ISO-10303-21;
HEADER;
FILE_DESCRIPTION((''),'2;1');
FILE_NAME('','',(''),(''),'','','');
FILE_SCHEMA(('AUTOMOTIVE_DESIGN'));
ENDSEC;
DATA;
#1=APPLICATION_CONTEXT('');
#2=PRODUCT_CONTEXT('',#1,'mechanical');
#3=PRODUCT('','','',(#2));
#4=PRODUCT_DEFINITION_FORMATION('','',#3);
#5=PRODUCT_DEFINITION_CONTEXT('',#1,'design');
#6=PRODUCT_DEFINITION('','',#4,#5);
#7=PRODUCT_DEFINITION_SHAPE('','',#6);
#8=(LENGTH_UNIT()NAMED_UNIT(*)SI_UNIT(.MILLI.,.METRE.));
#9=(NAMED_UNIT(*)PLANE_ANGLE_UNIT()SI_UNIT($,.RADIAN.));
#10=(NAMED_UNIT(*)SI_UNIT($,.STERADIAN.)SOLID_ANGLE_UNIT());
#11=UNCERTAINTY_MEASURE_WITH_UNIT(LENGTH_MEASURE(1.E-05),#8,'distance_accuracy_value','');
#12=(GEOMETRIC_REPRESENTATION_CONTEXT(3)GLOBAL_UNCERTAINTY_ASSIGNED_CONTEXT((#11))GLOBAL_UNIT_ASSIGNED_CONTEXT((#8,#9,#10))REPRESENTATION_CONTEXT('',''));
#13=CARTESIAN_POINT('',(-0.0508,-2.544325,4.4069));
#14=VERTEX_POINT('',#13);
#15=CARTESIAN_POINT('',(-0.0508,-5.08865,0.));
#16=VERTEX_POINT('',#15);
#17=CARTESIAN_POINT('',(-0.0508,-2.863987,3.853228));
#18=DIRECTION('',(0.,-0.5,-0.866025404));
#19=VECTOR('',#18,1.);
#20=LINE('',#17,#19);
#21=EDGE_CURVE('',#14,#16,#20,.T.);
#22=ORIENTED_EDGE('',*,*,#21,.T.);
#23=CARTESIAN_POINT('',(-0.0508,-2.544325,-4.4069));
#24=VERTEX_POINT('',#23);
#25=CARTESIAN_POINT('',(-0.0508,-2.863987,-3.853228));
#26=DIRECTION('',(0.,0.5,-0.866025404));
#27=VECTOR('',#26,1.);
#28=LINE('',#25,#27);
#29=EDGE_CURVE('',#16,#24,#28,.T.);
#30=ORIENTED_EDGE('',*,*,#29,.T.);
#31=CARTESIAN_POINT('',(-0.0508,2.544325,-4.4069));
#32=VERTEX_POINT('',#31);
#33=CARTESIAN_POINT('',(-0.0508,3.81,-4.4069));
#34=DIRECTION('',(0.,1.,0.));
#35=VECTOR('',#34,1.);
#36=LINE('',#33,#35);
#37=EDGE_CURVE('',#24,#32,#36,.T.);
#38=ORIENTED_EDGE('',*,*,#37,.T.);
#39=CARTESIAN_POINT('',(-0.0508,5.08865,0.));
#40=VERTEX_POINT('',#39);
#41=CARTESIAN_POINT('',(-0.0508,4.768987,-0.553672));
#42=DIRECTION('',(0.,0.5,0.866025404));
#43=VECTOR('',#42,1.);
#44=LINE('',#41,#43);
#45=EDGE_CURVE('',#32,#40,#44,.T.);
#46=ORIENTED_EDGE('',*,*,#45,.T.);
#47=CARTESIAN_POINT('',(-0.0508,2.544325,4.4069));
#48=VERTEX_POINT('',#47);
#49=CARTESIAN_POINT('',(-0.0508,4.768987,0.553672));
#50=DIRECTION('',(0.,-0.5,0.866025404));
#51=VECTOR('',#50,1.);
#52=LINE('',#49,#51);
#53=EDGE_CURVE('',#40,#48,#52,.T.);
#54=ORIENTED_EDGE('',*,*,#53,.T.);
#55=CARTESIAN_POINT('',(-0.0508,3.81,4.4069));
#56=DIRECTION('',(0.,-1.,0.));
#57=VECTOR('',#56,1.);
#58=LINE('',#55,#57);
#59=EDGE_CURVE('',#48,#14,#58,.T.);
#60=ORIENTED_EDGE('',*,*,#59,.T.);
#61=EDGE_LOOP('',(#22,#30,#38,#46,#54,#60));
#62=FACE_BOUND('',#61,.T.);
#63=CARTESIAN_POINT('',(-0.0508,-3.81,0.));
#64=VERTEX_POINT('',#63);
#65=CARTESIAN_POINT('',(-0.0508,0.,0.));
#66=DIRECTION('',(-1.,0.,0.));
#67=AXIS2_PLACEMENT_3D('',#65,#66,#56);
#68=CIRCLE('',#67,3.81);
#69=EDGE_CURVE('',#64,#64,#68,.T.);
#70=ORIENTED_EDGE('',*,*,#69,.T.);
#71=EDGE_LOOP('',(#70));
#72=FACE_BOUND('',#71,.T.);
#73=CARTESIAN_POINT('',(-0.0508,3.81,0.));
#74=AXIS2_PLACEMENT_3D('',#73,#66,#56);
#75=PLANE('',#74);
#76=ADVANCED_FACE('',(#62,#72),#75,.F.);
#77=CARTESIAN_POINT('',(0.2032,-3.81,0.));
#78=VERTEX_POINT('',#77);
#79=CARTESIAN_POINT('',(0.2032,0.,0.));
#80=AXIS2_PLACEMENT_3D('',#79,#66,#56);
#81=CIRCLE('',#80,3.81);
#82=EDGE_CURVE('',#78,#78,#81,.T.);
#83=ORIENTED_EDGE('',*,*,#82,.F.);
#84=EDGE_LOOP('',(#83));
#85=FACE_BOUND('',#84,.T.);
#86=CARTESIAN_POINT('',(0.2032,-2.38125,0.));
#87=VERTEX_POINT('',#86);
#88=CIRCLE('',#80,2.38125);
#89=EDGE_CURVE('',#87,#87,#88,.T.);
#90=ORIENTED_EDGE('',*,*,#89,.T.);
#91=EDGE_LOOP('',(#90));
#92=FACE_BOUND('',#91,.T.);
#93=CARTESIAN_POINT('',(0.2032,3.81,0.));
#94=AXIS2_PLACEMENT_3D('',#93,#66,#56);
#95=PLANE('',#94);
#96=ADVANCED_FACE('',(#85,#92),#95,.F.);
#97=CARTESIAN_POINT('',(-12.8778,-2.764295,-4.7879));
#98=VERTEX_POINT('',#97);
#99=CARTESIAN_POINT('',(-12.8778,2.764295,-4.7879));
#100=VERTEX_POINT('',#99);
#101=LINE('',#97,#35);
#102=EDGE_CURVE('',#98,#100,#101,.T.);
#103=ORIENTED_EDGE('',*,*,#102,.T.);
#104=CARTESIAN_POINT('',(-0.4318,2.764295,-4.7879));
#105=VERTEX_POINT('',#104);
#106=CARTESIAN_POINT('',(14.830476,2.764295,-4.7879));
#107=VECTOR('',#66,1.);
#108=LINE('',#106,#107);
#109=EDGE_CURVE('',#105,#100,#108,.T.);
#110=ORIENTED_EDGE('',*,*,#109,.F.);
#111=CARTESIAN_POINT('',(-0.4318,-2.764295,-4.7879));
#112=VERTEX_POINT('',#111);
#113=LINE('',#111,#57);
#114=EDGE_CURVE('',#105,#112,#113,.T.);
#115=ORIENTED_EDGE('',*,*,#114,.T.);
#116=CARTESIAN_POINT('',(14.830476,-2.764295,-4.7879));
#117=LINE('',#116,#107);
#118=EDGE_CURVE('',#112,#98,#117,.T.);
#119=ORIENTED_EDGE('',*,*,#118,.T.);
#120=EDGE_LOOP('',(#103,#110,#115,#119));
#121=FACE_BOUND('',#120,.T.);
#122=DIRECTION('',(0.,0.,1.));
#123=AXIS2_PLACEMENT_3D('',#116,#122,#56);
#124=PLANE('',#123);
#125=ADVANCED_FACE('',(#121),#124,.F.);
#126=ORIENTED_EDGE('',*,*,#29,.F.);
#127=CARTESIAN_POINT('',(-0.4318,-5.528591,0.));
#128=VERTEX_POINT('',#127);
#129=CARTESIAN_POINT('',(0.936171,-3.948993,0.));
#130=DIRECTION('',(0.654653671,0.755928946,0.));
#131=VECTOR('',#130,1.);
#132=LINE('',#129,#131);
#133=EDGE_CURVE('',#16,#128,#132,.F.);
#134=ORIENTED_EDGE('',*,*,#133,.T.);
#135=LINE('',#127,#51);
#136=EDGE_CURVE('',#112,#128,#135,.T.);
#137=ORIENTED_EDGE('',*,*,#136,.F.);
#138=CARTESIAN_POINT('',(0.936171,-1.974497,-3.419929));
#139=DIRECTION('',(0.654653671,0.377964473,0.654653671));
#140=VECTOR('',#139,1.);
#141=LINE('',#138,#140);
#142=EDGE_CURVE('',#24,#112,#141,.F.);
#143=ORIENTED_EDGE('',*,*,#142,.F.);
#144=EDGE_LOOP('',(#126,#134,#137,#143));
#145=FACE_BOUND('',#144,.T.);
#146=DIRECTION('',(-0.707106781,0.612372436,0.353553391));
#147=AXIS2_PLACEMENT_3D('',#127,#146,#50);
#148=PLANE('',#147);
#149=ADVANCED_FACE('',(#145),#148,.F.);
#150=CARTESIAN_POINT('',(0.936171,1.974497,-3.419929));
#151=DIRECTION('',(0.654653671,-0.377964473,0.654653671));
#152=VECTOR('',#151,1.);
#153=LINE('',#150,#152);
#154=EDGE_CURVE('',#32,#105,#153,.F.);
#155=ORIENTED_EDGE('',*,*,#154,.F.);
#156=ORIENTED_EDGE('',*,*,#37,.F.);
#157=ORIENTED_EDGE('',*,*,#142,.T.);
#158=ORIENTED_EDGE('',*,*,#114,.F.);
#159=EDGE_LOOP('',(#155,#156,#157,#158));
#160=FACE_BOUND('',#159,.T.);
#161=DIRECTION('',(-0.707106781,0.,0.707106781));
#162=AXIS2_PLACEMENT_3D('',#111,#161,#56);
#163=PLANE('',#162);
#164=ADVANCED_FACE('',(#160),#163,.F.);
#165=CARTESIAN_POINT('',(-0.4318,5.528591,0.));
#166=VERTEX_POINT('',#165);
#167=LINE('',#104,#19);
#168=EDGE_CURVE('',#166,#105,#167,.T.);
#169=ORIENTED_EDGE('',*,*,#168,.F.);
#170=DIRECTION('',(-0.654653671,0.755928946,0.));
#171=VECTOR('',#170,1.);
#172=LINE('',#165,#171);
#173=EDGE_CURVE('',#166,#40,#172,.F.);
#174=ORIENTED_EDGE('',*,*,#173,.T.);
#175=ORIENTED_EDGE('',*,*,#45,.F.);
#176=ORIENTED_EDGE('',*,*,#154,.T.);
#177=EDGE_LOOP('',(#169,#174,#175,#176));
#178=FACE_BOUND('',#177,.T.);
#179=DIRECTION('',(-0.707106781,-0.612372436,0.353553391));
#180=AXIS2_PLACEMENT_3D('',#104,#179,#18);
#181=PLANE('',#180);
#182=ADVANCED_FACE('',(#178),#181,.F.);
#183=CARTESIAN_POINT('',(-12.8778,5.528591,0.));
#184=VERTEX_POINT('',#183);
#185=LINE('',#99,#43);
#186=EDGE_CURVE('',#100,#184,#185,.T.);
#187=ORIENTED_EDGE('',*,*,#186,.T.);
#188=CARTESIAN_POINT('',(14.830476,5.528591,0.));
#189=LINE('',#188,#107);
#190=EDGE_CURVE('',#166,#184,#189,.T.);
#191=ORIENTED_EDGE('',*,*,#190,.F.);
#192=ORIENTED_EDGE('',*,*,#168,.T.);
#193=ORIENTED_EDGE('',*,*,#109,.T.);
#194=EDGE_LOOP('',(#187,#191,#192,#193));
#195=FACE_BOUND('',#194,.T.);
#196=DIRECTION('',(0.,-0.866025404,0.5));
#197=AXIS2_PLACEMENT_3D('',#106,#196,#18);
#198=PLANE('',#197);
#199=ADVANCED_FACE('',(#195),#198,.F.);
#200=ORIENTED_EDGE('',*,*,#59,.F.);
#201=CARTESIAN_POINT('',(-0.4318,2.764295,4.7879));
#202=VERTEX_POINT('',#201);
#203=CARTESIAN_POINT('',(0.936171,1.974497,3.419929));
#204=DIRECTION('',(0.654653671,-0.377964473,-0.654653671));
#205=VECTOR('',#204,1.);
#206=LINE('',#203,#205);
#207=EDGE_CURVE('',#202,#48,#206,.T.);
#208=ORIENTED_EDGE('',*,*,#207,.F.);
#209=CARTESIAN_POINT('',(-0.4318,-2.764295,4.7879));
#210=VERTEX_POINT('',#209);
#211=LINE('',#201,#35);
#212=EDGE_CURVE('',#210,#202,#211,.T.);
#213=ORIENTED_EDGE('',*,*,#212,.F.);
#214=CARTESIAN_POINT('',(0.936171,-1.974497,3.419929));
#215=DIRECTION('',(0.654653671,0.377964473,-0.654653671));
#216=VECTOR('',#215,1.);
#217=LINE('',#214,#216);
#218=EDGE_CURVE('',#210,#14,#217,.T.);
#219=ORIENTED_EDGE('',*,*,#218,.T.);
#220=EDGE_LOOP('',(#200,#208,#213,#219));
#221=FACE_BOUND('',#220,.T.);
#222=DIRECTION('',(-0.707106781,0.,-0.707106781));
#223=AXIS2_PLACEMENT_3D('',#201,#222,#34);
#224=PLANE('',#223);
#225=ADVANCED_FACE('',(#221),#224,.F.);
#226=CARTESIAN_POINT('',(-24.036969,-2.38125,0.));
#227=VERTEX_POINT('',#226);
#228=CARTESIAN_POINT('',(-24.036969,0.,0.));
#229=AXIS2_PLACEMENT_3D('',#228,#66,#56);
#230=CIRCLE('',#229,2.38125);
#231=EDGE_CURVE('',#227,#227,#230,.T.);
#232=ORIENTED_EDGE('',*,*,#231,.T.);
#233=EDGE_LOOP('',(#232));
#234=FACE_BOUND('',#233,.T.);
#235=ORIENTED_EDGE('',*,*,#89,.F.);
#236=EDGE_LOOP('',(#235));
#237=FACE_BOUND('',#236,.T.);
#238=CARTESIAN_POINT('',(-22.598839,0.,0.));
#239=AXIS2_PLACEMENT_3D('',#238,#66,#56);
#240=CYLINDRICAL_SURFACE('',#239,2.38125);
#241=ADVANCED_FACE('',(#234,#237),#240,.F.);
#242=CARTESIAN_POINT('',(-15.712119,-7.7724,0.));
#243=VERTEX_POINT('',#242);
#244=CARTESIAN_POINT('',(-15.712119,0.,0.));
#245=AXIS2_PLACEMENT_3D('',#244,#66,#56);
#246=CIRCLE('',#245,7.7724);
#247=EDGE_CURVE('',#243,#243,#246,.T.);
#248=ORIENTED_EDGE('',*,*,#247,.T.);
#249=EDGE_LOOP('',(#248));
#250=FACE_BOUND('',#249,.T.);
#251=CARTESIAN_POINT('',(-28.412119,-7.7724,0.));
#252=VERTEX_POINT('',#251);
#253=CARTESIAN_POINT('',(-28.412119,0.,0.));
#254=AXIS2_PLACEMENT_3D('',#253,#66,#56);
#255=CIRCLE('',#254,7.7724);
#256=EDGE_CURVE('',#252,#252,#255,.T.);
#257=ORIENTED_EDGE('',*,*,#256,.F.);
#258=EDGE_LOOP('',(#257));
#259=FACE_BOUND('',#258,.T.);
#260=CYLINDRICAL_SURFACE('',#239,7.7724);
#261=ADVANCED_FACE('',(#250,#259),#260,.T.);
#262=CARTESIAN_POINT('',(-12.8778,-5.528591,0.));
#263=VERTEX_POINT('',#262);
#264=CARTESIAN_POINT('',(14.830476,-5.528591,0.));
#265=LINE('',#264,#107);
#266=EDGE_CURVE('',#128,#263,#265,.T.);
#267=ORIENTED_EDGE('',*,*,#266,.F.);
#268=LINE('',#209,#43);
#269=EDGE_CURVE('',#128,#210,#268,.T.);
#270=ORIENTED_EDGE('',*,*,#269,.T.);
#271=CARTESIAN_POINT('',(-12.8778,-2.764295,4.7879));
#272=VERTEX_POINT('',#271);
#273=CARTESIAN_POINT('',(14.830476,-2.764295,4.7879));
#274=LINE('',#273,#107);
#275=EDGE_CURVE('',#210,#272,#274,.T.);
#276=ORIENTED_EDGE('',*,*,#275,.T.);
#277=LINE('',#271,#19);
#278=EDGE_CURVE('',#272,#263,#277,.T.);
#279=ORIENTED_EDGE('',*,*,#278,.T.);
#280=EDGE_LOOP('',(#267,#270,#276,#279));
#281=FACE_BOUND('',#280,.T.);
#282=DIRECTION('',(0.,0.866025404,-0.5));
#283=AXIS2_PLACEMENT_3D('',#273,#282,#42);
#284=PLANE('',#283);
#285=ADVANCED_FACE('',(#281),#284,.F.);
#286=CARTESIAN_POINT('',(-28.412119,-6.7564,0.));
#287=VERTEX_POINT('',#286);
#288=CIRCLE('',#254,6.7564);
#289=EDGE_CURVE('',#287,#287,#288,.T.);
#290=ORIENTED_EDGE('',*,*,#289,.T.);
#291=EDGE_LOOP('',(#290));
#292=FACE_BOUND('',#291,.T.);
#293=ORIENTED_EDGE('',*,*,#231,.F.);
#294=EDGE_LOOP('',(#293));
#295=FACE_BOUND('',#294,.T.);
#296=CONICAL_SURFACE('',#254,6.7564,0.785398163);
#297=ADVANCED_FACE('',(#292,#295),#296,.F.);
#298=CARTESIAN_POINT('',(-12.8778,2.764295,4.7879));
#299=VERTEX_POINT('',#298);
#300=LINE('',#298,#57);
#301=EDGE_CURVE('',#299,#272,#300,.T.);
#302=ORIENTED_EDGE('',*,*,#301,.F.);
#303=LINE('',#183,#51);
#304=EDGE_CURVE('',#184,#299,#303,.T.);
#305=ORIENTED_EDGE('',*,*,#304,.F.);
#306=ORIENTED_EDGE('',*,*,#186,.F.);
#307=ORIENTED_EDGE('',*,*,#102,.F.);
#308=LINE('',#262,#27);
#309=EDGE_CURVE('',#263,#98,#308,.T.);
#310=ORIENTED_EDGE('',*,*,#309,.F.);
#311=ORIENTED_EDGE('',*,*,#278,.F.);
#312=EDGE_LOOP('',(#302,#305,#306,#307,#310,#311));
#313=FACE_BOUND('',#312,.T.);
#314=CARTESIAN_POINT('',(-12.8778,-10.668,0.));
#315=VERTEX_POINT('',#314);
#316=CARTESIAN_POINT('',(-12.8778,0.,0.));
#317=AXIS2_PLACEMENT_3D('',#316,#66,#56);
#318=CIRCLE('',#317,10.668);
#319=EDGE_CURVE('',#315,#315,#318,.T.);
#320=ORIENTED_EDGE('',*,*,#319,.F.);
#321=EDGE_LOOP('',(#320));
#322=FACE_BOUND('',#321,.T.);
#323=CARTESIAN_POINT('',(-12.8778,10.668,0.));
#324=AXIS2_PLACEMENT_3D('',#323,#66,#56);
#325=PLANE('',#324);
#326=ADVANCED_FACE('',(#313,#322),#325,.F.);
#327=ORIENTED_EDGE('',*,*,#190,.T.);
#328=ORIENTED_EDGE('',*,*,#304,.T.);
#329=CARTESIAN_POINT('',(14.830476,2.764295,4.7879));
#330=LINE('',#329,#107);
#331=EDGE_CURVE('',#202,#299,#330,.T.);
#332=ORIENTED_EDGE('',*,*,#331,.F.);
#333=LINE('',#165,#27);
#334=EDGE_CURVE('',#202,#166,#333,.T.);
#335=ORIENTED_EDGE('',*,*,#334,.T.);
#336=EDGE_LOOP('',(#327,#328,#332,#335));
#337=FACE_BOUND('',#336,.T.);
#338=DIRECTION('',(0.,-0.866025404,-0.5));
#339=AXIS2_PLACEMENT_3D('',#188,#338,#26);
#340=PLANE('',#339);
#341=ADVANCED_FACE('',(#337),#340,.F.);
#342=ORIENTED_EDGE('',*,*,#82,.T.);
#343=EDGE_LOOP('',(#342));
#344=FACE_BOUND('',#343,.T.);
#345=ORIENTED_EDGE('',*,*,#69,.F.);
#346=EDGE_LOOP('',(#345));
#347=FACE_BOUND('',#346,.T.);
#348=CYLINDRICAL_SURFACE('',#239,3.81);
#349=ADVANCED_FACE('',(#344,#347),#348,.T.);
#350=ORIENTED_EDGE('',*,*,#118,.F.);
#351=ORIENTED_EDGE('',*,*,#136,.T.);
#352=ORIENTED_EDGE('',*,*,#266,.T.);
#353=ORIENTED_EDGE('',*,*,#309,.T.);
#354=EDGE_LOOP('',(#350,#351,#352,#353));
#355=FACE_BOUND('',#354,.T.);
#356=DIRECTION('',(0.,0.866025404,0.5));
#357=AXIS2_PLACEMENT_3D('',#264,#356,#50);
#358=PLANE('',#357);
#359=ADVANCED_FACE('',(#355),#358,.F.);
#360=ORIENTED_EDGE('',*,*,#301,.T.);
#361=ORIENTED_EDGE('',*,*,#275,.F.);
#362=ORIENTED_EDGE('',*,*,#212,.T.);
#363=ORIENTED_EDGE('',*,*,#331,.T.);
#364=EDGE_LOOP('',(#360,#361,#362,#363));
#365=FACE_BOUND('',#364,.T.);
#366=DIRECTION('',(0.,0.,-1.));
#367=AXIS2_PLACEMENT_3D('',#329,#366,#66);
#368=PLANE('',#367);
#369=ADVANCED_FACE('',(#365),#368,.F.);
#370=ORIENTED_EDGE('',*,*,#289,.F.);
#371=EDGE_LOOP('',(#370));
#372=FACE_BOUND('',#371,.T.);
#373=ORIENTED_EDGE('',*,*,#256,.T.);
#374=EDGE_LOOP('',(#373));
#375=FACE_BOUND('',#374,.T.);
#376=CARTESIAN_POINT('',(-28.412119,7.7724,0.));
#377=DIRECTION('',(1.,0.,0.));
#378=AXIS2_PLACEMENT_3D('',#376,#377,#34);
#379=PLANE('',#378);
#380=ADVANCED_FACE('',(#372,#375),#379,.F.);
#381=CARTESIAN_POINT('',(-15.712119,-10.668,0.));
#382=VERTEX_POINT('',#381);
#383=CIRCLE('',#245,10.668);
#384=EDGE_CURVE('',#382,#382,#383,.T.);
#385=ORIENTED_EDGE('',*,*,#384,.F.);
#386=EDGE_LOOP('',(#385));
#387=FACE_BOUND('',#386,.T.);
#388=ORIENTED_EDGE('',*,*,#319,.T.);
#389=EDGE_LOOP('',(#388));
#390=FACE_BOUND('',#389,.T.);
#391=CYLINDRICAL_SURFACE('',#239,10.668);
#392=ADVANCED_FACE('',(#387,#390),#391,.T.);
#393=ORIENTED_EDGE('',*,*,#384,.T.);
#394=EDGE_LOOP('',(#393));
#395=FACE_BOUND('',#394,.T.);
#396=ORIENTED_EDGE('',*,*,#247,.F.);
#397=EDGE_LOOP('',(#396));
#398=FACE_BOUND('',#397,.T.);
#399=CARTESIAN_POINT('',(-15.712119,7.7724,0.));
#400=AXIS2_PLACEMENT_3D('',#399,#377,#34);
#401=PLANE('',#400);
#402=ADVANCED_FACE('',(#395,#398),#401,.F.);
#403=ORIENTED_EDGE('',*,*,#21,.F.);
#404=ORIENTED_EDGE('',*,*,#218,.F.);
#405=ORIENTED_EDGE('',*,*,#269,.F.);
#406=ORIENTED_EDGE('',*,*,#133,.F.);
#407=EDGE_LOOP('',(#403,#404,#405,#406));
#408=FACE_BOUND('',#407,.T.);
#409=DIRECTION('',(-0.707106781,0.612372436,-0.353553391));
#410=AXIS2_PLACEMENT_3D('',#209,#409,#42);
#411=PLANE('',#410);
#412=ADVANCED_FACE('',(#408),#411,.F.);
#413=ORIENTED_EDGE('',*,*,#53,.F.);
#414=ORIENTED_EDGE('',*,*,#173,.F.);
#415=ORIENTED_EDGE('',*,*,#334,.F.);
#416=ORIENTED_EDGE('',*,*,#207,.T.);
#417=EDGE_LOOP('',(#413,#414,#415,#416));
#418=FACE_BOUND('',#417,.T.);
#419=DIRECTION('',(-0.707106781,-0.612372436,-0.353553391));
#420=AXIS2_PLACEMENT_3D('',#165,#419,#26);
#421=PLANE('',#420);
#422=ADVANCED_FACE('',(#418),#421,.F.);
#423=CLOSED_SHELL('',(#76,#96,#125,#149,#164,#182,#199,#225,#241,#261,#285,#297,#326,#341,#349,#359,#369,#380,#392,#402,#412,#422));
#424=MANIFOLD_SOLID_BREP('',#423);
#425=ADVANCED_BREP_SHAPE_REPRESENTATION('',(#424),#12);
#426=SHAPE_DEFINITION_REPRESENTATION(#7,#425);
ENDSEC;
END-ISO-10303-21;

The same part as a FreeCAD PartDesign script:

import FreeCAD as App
import Part
import Sketcher
from FreeCAD import Vector
Q = App.Units.Quantity


def edges_at(feature, points):
    """Names of the edges that pass closest to the given points."""
    edges = feature.Shape.Edges
    near = lambda p: min(range(len(edges)), key=lambda i: edges[i].distToShape(Part.Vertex(*p))[0])
    return sorted({f"Edge{near(p) + 1}" for p in points})

doc = App.newDocument("Part")
body = doc.addObject("PartDesign::Body", "Body")

sketch1 = doc.addObject("Sketcher::SketchObject", "Sketch")
body.addObject(sketch1)
sketch1.AttachmentSupport = (doc.XY_Plane, [""])
sketch1.MapMode = "FlatFace"
sketch1.addGeometry(Part.LineSegment(Vector(-12.8778, 3.81, 0), Vector(-12.8778, 10.668, 0)), False)
sketch1.addGeometry(Part.LineSegment(Vector(-12.8778, 10.668, 0), Vector(-15.712119, 10.668, 0)), False)
sketch1.addGeometry(Part.LineSegment(Vector(-15.712119, 10.668, 0), Vector(-15.712119, 7.7724, 0)), False)
sketch1.addGeometry(Part.LineSegment(Vector(-15.712119, 7.7724, 0), Vector(-28.412119, 7.7724, 0)), False)
sketch1.addGeometry(Part.LineSegment(Vector(-28.412119, 7.7724, 0), Vector(-28.412119, 6.7564, 0)), False)
sketch1.addGeometry(Part.LineSegment(Vector(-28.412119, 6.7564, 0), Vector(-24.036969, 2.38125, 0)), False)
sketch1.addGeometry(Part.LineSegment(Vector(-24.036969, 2.38125, 0), Vector(0.2032, 2.38125, 0)), False)
sketch1.addGeometry(Part.LineSegment(Vector(0.2032, 2.38125, 0), Vector(0.2032, 3.81, 0)), False)
sketch1.addGeometry(Part.LineSegment(Vector(0.2032, 3.81, 0), Vector(-12.8778, 3.81, 0)), False)
sketch1.addConstraint(Sketcher.Constraint("Coincident", 0, 2, 1, 1))
sketch1.addConstraint(Sketcher.Constraint("Coincident", 1, 2, 2, 1))
sketch1.addConstraint(Sketcher.Constraint("Coincident", 2, 2, 3, 1))
sketch1.addConstraint(Sketcher.Constraint("Coincident", 3, 2, 4, 1))
sketch1.addConstraint(Sketcher.Constraint("Coincident", 4, 2, 5, 1))
sketch1.addConstraint(Sketcher.Constraint("Coincident", 5, 2, 6, 1))
sketch1.addConstraint(Sketcher.Constraint("Coincident", 6, 2, 7, 1))
sketch1.addConstraint(Sketcher.Constraint("Coincident", 7, 2, 8, 1))
sketch1.addConstraint(Sketcher.Constraint("Coincident", 8, 2, 0, 1))
sketch1.addConstraint(Sketcher.Constraint("Vertical", 0))
sketch1.addConstraint(Sketcher.Constraint("Horizontal", 1))
sketch1.addConstraint(Sketcher.Constraint("Vertical", 2))
sketch1.addConstraint(Sketcher.Constraint("Horizontal", 3))
sketch1.addConstraint(Sketcher.Constraint("Vertical", 4))
sketch1.addConstraint(Sketcher.Constraint("Horizontal", 6))
sketch1.addConstraint(Sketcher.Constraint("Vertical", 7))
sketch1.addConstraint(Sketcher.Constraint("Horizontal", 8))
sketch1.addConstraint(Sketcher.Constraint("DistanceX", 3, 2, 3, 1, Q("0.5 in")))
sketch1.addConstraint(Sketcher.Constraint("Angle", 5, Q("-45 deg")))
sketch1.addConstraint(Sketcher.Constraint("DistanceY", 0, 1, 0, 2, Q("0.27 in")))
sketch1.addConstraint(Sketcher.Constraint("DistanceY", 4, 2, 4, 1, Q("0.04 in")))
sketch1.addConstraint(Sketcher.Constraint("DistanceX", 8, 2, 8, 1, Q("0.515 in")))
sketch1.addConstraint(Sketcher.Constraint("DistanceY", 2, 2, 2, 1, Q("0.114 in")))
sketch1.addConstraint(Sketcher.Constraint("DistanceY", -1, 1, 0, 2, Q("0.42 in")))
sketch1.addConstraint(Sketcher.Constraint("DistanceX", 0, 2, -1, 1, Q("0.507 in")))
sketch1.addConstraint(Sketcher.Constraint("DistanceY", -1, 1, 5, 2, Q("0.09375 in")))
sketch1.addConstraint(Sketcher.Constraint("DistanceX", 1, 2, 1, 1, 2.834319))
revolution = doc.addObject("PartDesign::Revolution", "Revolution")
body.addObject(revolution)
revolution.Profile = sketch1
revolution.ReferenceAxis = (sketch1, ["H_Axis"])
revolution.Angle = 360

sketch2 = doc.addObject("Sketcher::SketchObject", "Sketch001")
body.addObject(sketch2)
sketch2.AttachmentSupport = (doc.YZ_Plane, [""])
sketch2.MapMode = "FlatFace"
sketch2.AttachmentOffset = App.Placement(Vector(0, 0, -0.507 * 25.4), App.Rotation())
sketch2.addGeometry(Part.LineSegment(Vector(2.764295, 4.7879, 0), Vector(-2.764295, 4.7879, 0)), False)
sketch2.addGeometry(Part.LineSegment(Vector(-2.764295, 4.7879, 0), Vector(-5.528591, 0, 0)), False)
sketch2.addGeometry(Part.LineSegment(Vector(-5.528591, 0, 0), Vector(-2.764295, -4.7879, 0)), False)
sketch2.addGeometry(Part.LineSegment(Vector(-2.764295, -4.7879, 0), Vector(2.764295, -4.7879, 0)), False)
sketch2.addGeometry(Part.LineSegment(Vector(2.764295, -4.7879, 0), Vector(5.528591, 0, 0)), False)
sketch2.addGeometry(Part.LineSegment(Vector(5.528591, 0, 0), Vector(2.764295, 4.7879, 0)), False)
sketch2.addGeometry(Part.Circle(Vector(0, 0, 0), Vector(0, 0, 1), 3.81), False)
sketch2.addConstraint(Sketcher.Constraint("Coincident", 0, 2, 1, 1))
sketch2.addConstraint(Sketcher.Constraint("Coincident", 1, 2, 2, 1))
sketch2.addConstraint(Sketcher.Constraint("Coincident", 2, 2, 3, 1))
sketch2.addConstraint(Sketcher.Constraint("Coincident", 3, 2, 4, 1))
sketch2.addConstraint(Sketcher.Constraint("Coincident", 4, 2, 5, 1))
sketch2.addConstraint(Sketcher.Constraint("Coincident", 5, 2, 0, 1))
sketch2.addConstraint(Sketcher.Constraint("Horizontal", 0))
sketch2.addConstraint(Sketcher.Constraint("Horizontal", 3))
sketch2.addConstraint(Sketcher.Constraint("Coincident", 6, 3, -1, 1))
sketch2.addConstraint(Sketcher.Constraint("Symmetric", 0, 2, 3, 2, -1, 1))
sketch2.addConstraint(Sketcher.Constraint("Symmetric", 1, 2, 4, 2, -1, 1))
sketch2.addConstraint(Sketcher.Constraint("PointOnObject", 1, 2, -1))
sketch2.addConstraint(Sketcher.Constraint("Parallel", 2, 5))
sketch2.addConstraint(Sketcher.Constraint("Vertical", 0, 2, 2, 2))
sketch2.addConstraint(Sketcher.Constraint("Diameter", 6, Q("0.3 in")))
sketch2.addConstraint(Sketcher.Constraint("Angle", 1, Q("-120 deg")))
sketch2.addConstraint(Sketcher.Constraint("DistanceY", 2, 2, 0, 2, Q("0.377 in")))
sketch2.addConstraint(Sketcher.Constraint("DistanceX", 0, 2, 0, 1, 5.528591))
pad1 = doc.addObject("PartDesign::Pad", "Pad")
body.addObject(pad1)
pad1.Profile = sketch2
pad1.Length = Q("0.505 in")
doc.recompute()

chamfer = doc.addObject("PartDesign::Chamfer", "Chamfer")
body.addObject(chamfer)
chamfer.Base = (pad1, edges_at(pad1, [
    (-0.051, 4.146, 2.394),
    (-0.051, 0, 4.788),
    (-0.051, -4.146, 2.394),
    (-0.051, -4.146, -2.394),
    (-0.051, 0, -4.788),
    (-0.051, 4.146, -2.394),
]))
chamfer.Size = Q("0.015 in")

doc.recompute()
